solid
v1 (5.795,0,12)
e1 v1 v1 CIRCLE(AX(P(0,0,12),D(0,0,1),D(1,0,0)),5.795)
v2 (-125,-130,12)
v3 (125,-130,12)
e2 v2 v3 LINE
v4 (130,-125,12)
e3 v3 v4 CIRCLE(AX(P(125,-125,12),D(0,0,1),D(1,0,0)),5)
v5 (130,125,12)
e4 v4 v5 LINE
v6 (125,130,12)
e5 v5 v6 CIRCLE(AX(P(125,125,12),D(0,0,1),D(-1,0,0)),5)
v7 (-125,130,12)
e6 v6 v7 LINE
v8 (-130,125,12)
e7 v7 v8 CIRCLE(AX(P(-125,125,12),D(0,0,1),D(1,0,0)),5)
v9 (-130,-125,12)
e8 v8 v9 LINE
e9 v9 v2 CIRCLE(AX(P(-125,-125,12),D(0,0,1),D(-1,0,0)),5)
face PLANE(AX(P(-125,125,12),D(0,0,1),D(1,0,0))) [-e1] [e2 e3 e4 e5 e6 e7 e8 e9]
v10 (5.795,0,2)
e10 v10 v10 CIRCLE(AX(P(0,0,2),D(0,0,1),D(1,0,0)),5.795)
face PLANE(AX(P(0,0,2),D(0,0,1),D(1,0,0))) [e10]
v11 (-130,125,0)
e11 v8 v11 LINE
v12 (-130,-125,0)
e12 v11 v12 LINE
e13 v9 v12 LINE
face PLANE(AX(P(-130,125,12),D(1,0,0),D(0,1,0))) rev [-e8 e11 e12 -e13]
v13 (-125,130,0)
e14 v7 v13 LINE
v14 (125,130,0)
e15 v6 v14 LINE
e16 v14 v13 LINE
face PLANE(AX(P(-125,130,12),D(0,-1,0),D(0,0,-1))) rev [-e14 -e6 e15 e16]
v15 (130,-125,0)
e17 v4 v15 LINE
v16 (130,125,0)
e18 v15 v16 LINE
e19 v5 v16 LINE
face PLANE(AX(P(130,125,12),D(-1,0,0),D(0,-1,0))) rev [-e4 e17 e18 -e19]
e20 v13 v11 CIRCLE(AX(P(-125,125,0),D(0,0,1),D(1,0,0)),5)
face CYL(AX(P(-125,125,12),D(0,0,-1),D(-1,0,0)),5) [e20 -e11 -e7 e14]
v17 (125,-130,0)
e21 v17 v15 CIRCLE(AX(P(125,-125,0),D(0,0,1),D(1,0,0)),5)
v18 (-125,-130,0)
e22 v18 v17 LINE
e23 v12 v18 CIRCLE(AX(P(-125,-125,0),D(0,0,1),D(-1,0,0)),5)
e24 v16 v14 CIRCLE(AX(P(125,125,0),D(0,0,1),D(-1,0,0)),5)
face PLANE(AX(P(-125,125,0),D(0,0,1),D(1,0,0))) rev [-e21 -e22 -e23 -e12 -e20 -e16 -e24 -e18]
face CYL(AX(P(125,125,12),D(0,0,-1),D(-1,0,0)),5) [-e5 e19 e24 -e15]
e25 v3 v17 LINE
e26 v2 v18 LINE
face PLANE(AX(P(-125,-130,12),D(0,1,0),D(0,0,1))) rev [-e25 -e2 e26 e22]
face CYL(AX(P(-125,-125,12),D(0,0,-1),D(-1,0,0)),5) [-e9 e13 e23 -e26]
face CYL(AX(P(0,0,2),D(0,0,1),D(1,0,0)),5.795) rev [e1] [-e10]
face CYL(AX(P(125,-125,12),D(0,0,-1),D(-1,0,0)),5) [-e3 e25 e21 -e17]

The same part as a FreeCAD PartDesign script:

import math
import FreeCAD as App
import Part
import Sketcher

V = App.Vector

doc = App.newDocument("Part")
body = doc.addObject("PartDesign::Body", "Body")

sketch1 = body.newObject("Sketcher::SketchObject", "Sketch")
sketch1.AttachmentSupport = (doc.getObject("XY_Plane"), [""])
sketch1.MapMode = "FlatFace"
sketch1.addGeometry([
    Part.LineSegment(V(125, 130, 0), V(-125, 130, 0)),
    Part.ArcOfCircle(Part.Circle(V(-125, 125, 0), V(0, 0, 1), 5), math.radians(90), math.radians(180)),
    Part.LineSegment(V(-130, 125, 0), V(-130, -125, 0)),
    Part.ArcOfCircle(Part.Circle(V(-125, -125, 0), V(0, 0, 1), 5), math.radians(180), math.radians(270)),
    Part.LineSegment(V(-125, -130, 0), V(125, -130, 0)),
    Part.ArcOfCircle(Part.Circle(V(125, -125, 0), V(0, 0, 1), 5), math.radians(-90), math.radians(0)),
    Part.LineSegment(V(130, -125, 0), V(130, 125, 0)),
    Part.ArcOfCircle(Part.Circle(V(125, 125, 0), V(0, 0, 1), 5), math.radians(0), math.radians(90)),
], False)
sketch1.addConstraint([
    Sketcher.Constraint("Tangent", 0, 2, 1, 1),
    Sketcher.Constraint("Tangent", 1, 2, 2, 1),
    Sketcher.Constraint("Tangent", 2, 2, 3, 1),
    Sketcher.Constraint("Tangent", 3, 2, 4, 1),
    Sketcher.Constraint("Tangent", 4, 2, 5, 1),
    Sketcher.Constraint("Tangent", 5, 2, 6, 1),
    Sketcher.Constraint("Tangent", 6, 2, 7, 1),
    Sketcher.Constraint("Tangent", 7, 2, 0, 1),
    Sketcher.Constraint("Horizontal", 0),
    Sketcher.Constraint("Vertical", 2),
    Sketcher.Constraint("Horizontal", 4),
    Sketcher.Constraint("Vertical", 6),
    Sketcher.Constraint("Equal", 1, 3),
    Sketcher.Constraint("Equal", 3, 5),
    Sketcher.Constraint("Equal", 5, 7),
    Sketcher.Constraint("Symmetric", 1, 3, 5, 3, -1, 1),
    Sketcher.Constraint("Equal", 4, 2),
    Sketcher.Constraint("Radius", 1, 5.0),
    Sketcher.Constraint("DistanceX", 0, 2, 0, 1, 250.0),
])
pad1 = body.newObject("PartDesign::Pad", "Pad")
pad1.Profile = sketch1
pad1.Length = 12

sketch2 = body.newObject("Sketcher::SketchObject", "Sketch001")
sketch2.AttachmentSupport = (doc.getObject("XY_Plane"), [""])
sketch2.MapMode = "FlatFace"
sketch2.AttachmentOffset = App.Placement(V(0, 0, 12), App.Rotation())
sketch2.addGeometry(Part.Circle(V(0, 0, 0), V(0, 0, 1), 5.795), False)
sketch2.addConstraint([
    Sketcher.Constraint("Coincident", 0, 3, -1, 1),
    Sketcher.Constraint("Diameter", 0, 11.59),
])
pocket1 = body.newObject("PartDesign::Pocket", "Pocket")
pocket1.Profile = sketch2
pocket1.Length = 10

doc.recompute()
